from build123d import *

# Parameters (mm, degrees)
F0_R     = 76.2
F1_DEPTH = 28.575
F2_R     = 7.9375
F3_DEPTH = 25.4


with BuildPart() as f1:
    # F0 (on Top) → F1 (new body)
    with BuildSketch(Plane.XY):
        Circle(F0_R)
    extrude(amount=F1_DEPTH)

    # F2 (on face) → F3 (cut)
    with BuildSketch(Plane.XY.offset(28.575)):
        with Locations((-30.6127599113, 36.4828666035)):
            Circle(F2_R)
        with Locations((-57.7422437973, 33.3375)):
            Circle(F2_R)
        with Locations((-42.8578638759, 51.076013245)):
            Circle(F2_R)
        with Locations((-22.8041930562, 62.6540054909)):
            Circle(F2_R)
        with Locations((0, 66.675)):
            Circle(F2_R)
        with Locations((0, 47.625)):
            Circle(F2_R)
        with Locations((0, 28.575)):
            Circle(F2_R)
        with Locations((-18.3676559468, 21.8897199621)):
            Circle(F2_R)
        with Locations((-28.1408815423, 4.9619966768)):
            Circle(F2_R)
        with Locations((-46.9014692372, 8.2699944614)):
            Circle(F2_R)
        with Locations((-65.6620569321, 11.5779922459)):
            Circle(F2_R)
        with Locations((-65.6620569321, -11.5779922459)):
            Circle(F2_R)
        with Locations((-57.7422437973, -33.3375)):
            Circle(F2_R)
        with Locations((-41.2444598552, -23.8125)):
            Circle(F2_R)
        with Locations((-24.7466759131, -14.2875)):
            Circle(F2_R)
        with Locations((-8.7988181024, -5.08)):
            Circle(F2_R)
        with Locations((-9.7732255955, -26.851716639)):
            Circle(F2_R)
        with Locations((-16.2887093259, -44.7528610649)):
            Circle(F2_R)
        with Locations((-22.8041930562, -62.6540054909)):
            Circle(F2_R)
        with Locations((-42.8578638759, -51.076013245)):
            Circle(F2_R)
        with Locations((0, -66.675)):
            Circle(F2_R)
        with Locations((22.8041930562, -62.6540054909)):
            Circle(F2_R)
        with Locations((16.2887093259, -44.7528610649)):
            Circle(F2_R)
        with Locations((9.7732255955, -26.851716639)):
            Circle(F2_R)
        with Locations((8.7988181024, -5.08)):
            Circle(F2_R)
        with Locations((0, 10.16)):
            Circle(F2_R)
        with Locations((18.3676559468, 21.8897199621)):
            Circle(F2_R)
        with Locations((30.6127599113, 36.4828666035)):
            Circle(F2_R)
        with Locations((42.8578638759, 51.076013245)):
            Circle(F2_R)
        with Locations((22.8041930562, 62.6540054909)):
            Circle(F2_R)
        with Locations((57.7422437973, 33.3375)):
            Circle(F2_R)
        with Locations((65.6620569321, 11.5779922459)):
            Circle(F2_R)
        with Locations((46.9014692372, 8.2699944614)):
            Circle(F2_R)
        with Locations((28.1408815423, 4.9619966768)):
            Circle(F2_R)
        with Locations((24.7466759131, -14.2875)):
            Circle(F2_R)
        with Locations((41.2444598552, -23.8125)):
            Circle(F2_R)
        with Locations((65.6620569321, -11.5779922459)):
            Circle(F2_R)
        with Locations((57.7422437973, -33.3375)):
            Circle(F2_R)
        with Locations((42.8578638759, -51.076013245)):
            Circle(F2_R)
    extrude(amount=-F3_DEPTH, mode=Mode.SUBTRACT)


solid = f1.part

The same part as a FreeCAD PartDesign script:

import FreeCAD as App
import Part
import Sketcher

V = App.Vector
Q = App.Units.Quantity

doc = App.newDocument("Part")
body = doc.addObject("PartDesign::Body", "Body")

# Sketch on XY plane
sketch1 = doc.addObject("Sketcher::SketchObject", "Sketch")
body.addObject(sketch1)
sketch1.AttachmentSupport = (doc.XY_Plane, [""])
sketch1.MapMode = "FlatFace"
sketch1.addGeometry(Part.Circle(V(0, 0, 0), V(0, 0, 1), 76), False)
sketch1.addConstraint([
    Sketcher.Constraint("Coincident", 0, 3, -1, 1),
    Sketcher.Constraint("Diameter", 0, Q("6 in")),
])
pad1 = doc.addObject("PartDesign::Pad", "Pad")
body.addObject(pad1)
pad1.Profile = sketch1
pad1.Length = Q("1.125 in")

# Sketch on XY plane
sketch2 = doc.addObject("Sketcher::SketchObject", "Sketch001")
body.addObject(sketch2)
sketch2.AttachmentSupport = (doc.XY_Plane, [""])
sketch2.MapMode = "FlatFace"
sketch2.AttachmentOffset = App.Placement(V(0, 0, 1.125 * 25.4), App.Rotation())
sketch2.addGeometry([
    Part.Circle(V(-31, 36, 0), V(0, 0, 1), 8),  # 0
    Part.Circle(V(-58, 33, 0), V(0, 0, 1), 8),  # 1
    Part.Circle(V(-43, 51, 0), V(0, 0, 1), 8),  # 2
    Part.Circle(V(-23, 63, 0), V(0, 0, 1), 8),  # 3
    Part.Circle(V(0, 67, 0), V(0, 0, 1), 8),  # 4
    Part.Circle(V(0, 48, 0), V(0, 0, 1), 8),  # 5
    Part.Circle(V(0, 29, 0), V(0, 0, 1), 8),  # 6
    Part.Circle(V(-18, 22, 0), V(0, 0, 1), 8),  # 7
    Part.Circle(V(-28, 5, 0), V(0, 0, 1), 8),  # 8
    Part.Circle(V(-47, 8, 0), V(0, 0, 1), 8),  # 9
    Part.Circle(V(-66, 12, 0), V(0, 0, 1), 8),  # 10
    Part.Circle(V(-66, -12, 0), V(0, 0, 1), 8),  # 11
    Part.Circle(V(-58, -33, 0), V(0, 0, 1), 8),  # 12
    Part.Circle(V(-41, -24, 0), V(0, 0, 1), 8),  # 13
    Part.Circle(V(-25, -14, 0), V(0, 0, 1), 8),  # 14
    Part.Circle(V(-9, -5, 0), V(0, 0, 1), 8),  # 15
    Part.Circle(V(-10, -27, 0), V(0, 0, 1), 8),  # 16
    Part.Circle(V(-16, -45, 0), V(0, 0, 1), 8),  # 17
    Part.Circle(V(-23, -63, 0), V(0, 0, 1), 8),  # 18
    Part.Circle(V(-43, -51, 0), V(0, 0, 1), 8),  # 19
    Part.Circle(V(0, -67, 0), V(0, 0, 1), 8),  # 20
    Part.Circle(V(23, -63, 0), V(0, 0, 1), 8),  # 21
    Part.Circle(V(16, -45, 0), V(0, 0, 1), 8),  # 22
    Part.Circle(V(10, -27, 0), V(0, 0, 1), 8),  # 23
    Part.Circle(V(9, -5, 0), V(0, 0, 1), 8),  # 24
    Part.Circle(V(0, 10, 0), V(0, 0, 1), 8),  # 25
    Part.Circle(V(18, 22, 0), V(0, 0, 1), 8),  # 26
    Part.Circle(V(31, 36, 0), V(0, 0, 1), 8),  # 27
    Part.Circle(V(43, 51, 0), V(0, 0, 1), 8),  # 28
    Part.Circle(V(23, 63, 0), V(0, 0, 1), 8),  # 29
    Part.Circle(V(58, 33, 0), V(0, 0, 1), 8),  # 30
    Part.Circle(V(66, 12, 0), V(0, 0, 1), 8),  # 31
    Part.Circle(V(47, 8, 0), V(0, 0, 1), 8),  # 32
    Part.Circle(V(28, 5, 0), V(0, 0, 1), 8),  # 33
    Part.Circle(V(25, -14, 0), V(0, 0, 1), 8),  # 34
    Part.Circle(V(41, -24, 0), V(0, 0, 1), 8),  # 35
    Part.Circle(V(66, -12, 0), V(0, 0, 1), 8),  # 36
    Part.Circle(V(58, -33, 0), V(0, 0, 1), 8),  # 37
    Part.Circle(V(43, -51, 0), V(0, 0, 1), 8),  # 38
], False)
sketch2.addConstraint([
    Sketcher.Constraint("Equal", 0, 1),
    Sketcher.Constraint("Equal", 1, 2),
    Sketcher.Constraint("Equal", 2, 3),
    Sketcher.Constraint("Equal", 3, 4),
    Sketcher.Constraint("Equal", 4, 5),
    Sketcher.Constraint("Equal", 5, 6),
    Sketcher.Constraint("Equal", 6, 7),
    Sketcher.Constraint("Equal", 7, 8),
    Sketcher.Constraint("Equal", 8, 9),
    Sketcher.Constraint("Equal", 9, 10),
    Sketcher.Constraint("Equal", 10, 11),
    Sketcher.Constraint("Equal", 11, 12),
    Sketcher.Constraint("Equal", 12, 13),
    Sketcher.Constraint("Equal", 13, 14),
    Sketcher.Constraint("Equal", 14, 15),
    Sketcher.Constraint("Equal", 15, 16),
    Sketcher.Constraint("Equal", 16, 17),
    Sketcher.Constraint("Equal", 17, 18),
    Sketcher.Constraint("Equal", 18, 19),
    Sketcher.Constraint("Equal", 19, 20),
    Sketcher.Constraint("Equal", 20, 21),
    Sketcher.Constraint("Equal", 21, 22),
    Sketcher.Constraint("Equal", 22, 23),
    Sketcher.Constraint("Equal", 23, 24),
    Sketcher.Constraint("Equal", 24, 25),
    Sketcher.Constraint("Equal", 25, 26),
    Sketcher.Constraint("Equal", 26, 27),
    Sketcher.Constraint("Equal", 27, 28),
    Sketcher.Constraint("Equal", 28, 29),
    Sketcher.Constraint("Equal", 29, 30),
    Sketcher.Constraint("Equal", 30, 31),
    Sketcher.Constraint("Equal", 31, 32),
    Sketcher.Constraint("Equal", 32, 33),
    Sketcher.Constraint("Equal", 33, 34),
    Sketcher.Constraint("Equal", 34, 35),
    Sketcher.Constraint("Equal", 35, 36),
    Sketcher.Constraint("Equal", 36, 37),
    Sketcher.Constraint("Equal", 37, 38),
    Sketcher.Constraint("Symmetric", 4, 3, 20, 3, -1, 1),
    Sketcher.Constraint("Symmetric", 3, 3, 21, 3, -1, 1),
    Sketcher.Constraint("Symmetric", 19, 3, 28, 3, -1, 1),
    Sketcher.Constraint("Symmetric", 18, 3, 29, 3, -1, 1),
    Sketcher.Constraint("Symmetric", 12, 3, 30, 3, -1, 1),
    Sketcher.Constraint("Symmetric", 11, 3, 31, 3, -1, 1),
    Sketcher.Constraint("Symmetric", 10, 3, 36, 3, -1, 1),
    Sketcher.Constraint("Symmetric", 1, 3, 37, 3, -1, 1),
    Sketcher.Constraint("Symmetric", 2, 3, 38, 3, -1, 1),
    Sketcher.Constraint("Symmetric", 18, 3, 21, 3, -2),
    Sketcher.Constraint("Symmetric", 17, 3, 22, 3, -2),
    Sketcher.Constraint("Symmetric", 16, 3, 23, 3, -2),
    Sketcher.Constraint("Symmetric", 15, 3, 24, 3, -2),
    Sketcher.Constraint("Symmetric", 7, 3, 26, 3, -2),
    Sketcher.Constraint("Symmetric", 0, 3, 27, 3, -2),
    Sketcher.Constraint("Symmetric", 2, 3, 28, 3, -2),
    Sketcher.Constraint("Symmetric", 1, 3, 30, 3, -2),
    Sketcher.Constraint("Symmetric", 10, 3, 31, 3, -2),
    Sketcher.Constraint("Symmetric", 9, 3, 32, 3, -2),
    Sketcher.Constraint("Symmetric", 8, 3, 33, 3, -2),
    Sketcher.Constraint("Symmetric", 14, 3, 34, 3, -2),
    Sketcher.Constraint("Symmetric", 13, 3, 35, 3, -2),
    Sketcher.Constraint("PointOnObject", 4, 3, -2),
    Sketcher.Constraint("PointOnObject", 5, 3, -2),
    Sketcher.Constraint("PointOnObject", 6, 3, -2),
    Sketcher.Constraint("PointOnObject", 25, 3, -2),
    Sketcher.Constraint("Diameter", 0, Q("0.625 in")),
    Sketcher.Constraint("DistanceY", 15, 3, -1, 1, Q("0.2 in")),
    Sketcher.Constraint("DistanceY", -1, 1, 25, 3, Q("0.4 in")),
    Sketcher.Constraint("DistanceY", 6, 3, 4, 3, Q("1.5 in")),
    Sketcher.Constraint("DistanceY", 5, 3, 4, 3, Q("0.75 in")),
    Sketcher.Constraint("DistanceY", 12, 3, 14, 3, Q("0.75 in")),
    Sketcher.Constraint("DistanceY", -1, 1, 1, 3, Q("1.3125 in")),
    Sketcher.Constraint("DistanceY", -1, 1, 4, 3, Q("2.625 in")),
    Sketcher.Constraint("DistanceY", 13, 3, -1, 1, Q("0.9375 in")),
    Sketcher.Constraint("DistanceY", -1, 1, 7, 3, Q("0.8618 in")),
    Sketcher.Constraint("DistanceX", 11, 3, 7, 3, 47.294401),
    Sketcher.Constraint("DistanceX", 14, 3, 23, 3, 34.519902),
    Sketcher.Constraint("DistanceX", 0, 3, -1, 1, 30.61276),
    Sketcher.Constraint("DistanceX", 8, 3, -1, 1, 28.140882),
    Sketcher.Constraint("DistanceX", 9, 3, -1, 1, 46.901469),
    Sketcher.Constraint("DistanceX", 13, 3, -1, 1, 41.24446),
    Sketcher.Constraint("DistanceX", 15, 3, -1, 1, 8.798818),
    Sketcher.Constraint("DistanceX", 17, 3, -1, 1, 16.288709),
    Sketcher.Constraint("DistanceY", 17, 3, -1, 1, 44.752861),
    Sketcher.Constraint("DistanceX", 1, 3, 2, 3, 14.88438),
    Sketcher.Constraint("DistanceX", 2, 3, 3, 3, 20.053671),
    Sketcher.Constraint("DistanceY", 0, 3, 3, 3, 26.171139),
    Sketcher.Constraint("DistanceY", 8, 3, 0, 3, 31.52087),
    Sketcher.Constraint("DistanceY", 9, 3, 2, 3, 42.806019),
    Sketcher.Constraint("DistanceY", 10, 3, 2, 3, 39.498021),
    Sketcher.Constraint("DistanceY", 11, 3, 8, 3, 16.539989),
    Sketcher.Constraint("DistanceX", 14, 3, 7, 3, 6.37902),
    Sketcher.Constraint("DistanceX", 14, 3, 16, 3, 14.97345),
    Sketcher.Constraint("DistanceX", 12, 3, 16, 3, 47.969018),
    Sketcher.Constraint("DistanceY", 18, 3, 16, 3, 35.802289),
    Sketcher.Constraint("DistanceY", -1, 1, 0, 3, 36.482867),
])
pocket1 = doc.addObject("PartDesign::Pocket", "Pocket")
body.addObject(pocket1)
pocket1.Profile = sketch2
pocket1.Length = Q("1 in")

doc.recompute()
